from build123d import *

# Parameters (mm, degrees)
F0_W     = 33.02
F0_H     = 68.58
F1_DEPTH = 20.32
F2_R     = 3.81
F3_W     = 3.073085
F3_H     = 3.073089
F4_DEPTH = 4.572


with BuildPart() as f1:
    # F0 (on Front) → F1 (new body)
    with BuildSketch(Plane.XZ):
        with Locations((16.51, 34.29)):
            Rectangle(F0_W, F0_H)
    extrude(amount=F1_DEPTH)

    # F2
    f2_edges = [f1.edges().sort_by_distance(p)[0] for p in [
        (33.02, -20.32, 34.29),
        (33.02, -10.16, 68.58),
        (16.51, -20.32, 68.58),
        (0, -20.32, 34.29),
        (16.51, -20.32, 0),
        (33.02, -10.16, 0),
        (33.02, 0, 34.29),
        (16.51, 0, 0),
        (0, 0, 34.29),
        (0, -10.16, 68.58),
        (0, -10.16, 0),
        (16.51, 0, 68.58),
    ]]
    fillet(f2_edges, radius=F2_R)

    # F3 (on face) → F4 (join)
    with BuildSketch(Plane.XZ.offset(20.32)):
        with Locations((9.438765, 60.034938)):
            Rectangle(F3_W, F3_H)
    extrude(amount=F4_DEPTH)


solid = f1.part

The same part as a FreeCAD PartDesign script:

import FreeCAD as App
import Part
import Sketcher

V = App.Vector
Q = App.Units.Quantity


def add_polygon(sketch, points):
    """Adds a closed chain of lines whose ends are joined by coincident constraints."""
    first, n = sketch.GeometryCount, len(points)
    for a, b in zip(points, points[1:] + points[:1]):
        sketch.addGeometry(Part.LineSegment(App.Vector(*a, 0), App.Vector(*b, 0)), False)
    for i in range(n):
        sketch.addConstraint(Sketcher.Constraint("Coincident", first + i, 2, first + (i + 1) % n, 1))

doc = App.newDocument("Part")
body = doc.addObject("PartDesign::Body", "Body")

sketch1 = doc.addObject("Sketcher::SketchObject", "Sketch")
body.addObject(sketch1)
sketch1.AttachmentSupport = (doc.XZ_Plane, [""])
sketch1.MapMode = "FlatFace"
add_polygon(sketch1, [(0, 69), (0, 0), (33, 0), (33, 69)])
sketch1.addConstraint(Sketcher.Constraint("Vertical", 0))
sketch1.addConstraint(Sketcher.Constraint("Horizontal", 1))
sketch1.addConstraint(Sketcher.Constraint("Vertical", 2))
sketch1.addConstraint(Sketcher.Constraint("Horizontal", 3))
sketch1.addConstraint(Sketcher.Constraint("Coincident", 0, 2, -1, 1))
sketch1.addConstraint(Sketcher.Constraint("DistanceX", 1, 1, 1, 2, Q("1.3 in")))
sketch1.addConstraint(Sketcher.Constraint("DistanceY", 0, 2, 0, 1, Q("2.7 in")))
pad1 = doc.addObject("PartDesign::Pad", "Pad")
body.addObject(pad1)
pad1.Profile = sketch1
pad1.Length = Q("0.8 in")
doc.recompute()

fillet = doc.addObject("PartDesign::Fillet", "Fillet")
body.addObject(fillet)
fillet.Base = (pad1, ["Edge1"])
fillet.UseAllEdges = True
fillet.Radius = Q("0.15 in")

sketch2 = doc.addObject("Sketcher::SketchObject", "Sketch001")
body.addObject(sketch2)
sketch2.AttachmentSupport = (doc.XZ_Plane, [""])
sketch2.MapMode = "FlatFace"
sketch2.AttachmentOffset = App.Placement(V(0, 0, 0.8 * 25.4), App.Rotation())
add_polygon(sketch2, [(7.9, 61.6), (7.9, 58.5), (11, 58.5), (11, 61.6)])
sketch2.addConstraint(Sketcher.Constraint("Vertical", 0))
sketch2.addConstraint(Sketcher.Constraint("Horizontal", 1))
sketch2.addConstraint(Sketcher.Constraint("Vertical", 2))
sketch2.addConstraint(Sketcher.Constraint("Horizontal", 3))
sketch2.addConstraint(Sketcher.Constraint("DistanceY", 0, 2, 0, 1, Q("3.073089 mm")))
sketch2.addConstraint(Sketcher.Constraint("DistanceX", 1, 1, 1, 2, Q("3.073085 mm")))
sketch2.addConstraint(Sketcher.Constraint("DistanceX", -1, 1, 0, 2, Q("7.902222 mm")))
sketch2.addConstraint(Sketcher.Constraint("DistanceY", -1, 1, 0, 2, Q("58.498393 mm")))
pad2 = doc.addObject("PartDesign::Pad", "Pad001")
body.addObject(pad2)
pad2.Profile = sketch2
pad2.Length = Q("0.18 in")

doc.recompute()
